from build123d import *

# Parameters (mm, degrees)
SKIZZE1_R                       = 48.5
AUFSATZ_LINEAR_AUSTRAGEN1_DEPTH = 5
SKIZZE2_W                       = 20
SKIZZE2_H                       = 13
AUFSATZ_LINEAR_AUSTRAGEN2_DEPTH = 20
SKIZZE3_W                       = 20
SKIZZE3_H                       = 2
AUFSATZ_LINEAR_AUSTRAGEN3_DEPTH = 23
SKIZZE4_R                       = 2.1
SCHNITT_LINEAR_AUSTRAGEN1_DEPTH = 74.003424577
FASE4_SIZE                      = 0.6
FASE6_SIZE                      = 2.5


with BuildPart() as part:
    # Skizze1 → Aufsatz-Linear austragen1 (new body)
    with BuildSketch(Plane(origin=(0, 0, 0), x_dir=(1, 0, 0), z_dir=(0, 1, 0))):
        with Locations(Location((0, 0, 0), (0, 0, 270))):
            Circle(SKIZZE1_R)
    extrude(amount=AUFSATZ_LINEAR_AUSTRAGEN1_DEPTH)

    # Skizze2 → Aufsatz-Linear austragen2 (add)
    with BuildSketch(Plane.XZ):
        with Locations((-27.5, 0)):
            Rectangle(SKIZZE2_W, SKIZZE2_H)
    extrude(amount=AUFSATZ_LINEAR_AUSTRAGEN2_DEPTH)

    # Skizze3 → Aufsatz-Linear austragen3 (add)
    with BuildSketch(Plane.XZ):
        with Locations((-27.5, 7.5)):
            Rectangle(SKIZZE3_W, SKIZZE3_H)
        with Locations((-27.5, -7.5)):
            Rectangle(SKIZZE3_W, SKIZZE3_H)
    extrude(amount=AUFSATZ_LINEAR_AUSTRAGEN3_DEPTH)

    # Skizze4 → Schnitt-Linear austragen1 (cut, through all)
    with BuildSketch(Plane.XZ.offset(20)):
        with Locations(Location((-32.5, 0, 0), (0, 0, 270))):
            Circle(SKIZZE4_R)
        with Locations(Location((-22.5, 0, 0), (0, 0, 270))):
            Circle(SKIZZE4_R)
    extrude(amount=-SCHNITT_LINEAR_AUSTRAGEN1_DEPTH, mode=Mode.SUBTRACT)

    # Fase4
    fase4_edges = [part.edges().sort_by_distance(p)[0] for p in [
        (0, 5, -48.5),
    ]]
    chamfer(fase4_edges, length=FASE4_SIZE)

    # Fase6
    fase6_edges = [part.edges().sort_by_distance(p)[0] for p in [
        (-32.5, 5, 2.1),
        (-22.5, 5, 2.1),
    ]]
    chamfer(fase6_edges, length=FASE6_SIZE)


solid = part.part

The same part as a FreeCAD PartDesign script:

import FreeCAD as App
import Part
import Sketcher

V = App.Vector
Q = App.Units.Quantity


def edges_at(feature, points):
    """Names of the edges that pass closest to the given points."""
    edges = feature.Shape.Edges
    near = lambda p: min(range(len(edges)), key=lambda i: edges[i].distToShape(Part.Vertex(*p))[0])
    return sorted({f"Edge{near(p) + 1}" for p in points})

doc = App.newDocument("Part")
body = doc.addObject("PartDesign::Body", "Body")

# Sketch on XZ plane
sketch1 = body.newObject("Sketcher::SketchObject", "Sketch")
sketch1.AttachmentSupport = (doc.getObject("XZ_Plane"), [""])
sketch1.MapMode = "FlatFace"
sketch1.addGeometry(Part.Circle(V(0, 0, 0), V(0, 0, 1), 48), False)
sketch1.addConstraint(Sketcher.Constraint("Coincident", 0, 3, -1, 1))
sketch1.addConstraint(Sketcher.Constraint("Diameter", 0, Q("97 mm")))
pad1 = body.newObject("PartDesign::Pad", "Pad")
pad1.Profile = sketch1
pad1.Length = 5
pad1.Reversed = True

# Sketch on XZ plane
sketch2 = body.newObject("Sketcher::SketchObject", "Sketch001")
sketch2.AttachmentSupport = (doc.getObject("XZ_Plane"), [""])
sketch2.MapMode = "FlatFace"
sketch2.addGeometry(Part.LineSegment(V(-38, 6, 0), V(-38, -6, 0)), False)
sketch2.addGeometry(Part.LineSegment(V(-38, -6, 0), V(-18, -6, 0)), False)
sketch2.addGeometry(Part.LineSegment(V(-18, -6, 0), V(-18, 6, 0)), False)
sketch2.addGeometry(Part.LineSegment(V(-18, 6, 0), V(-38, 6, 0)), False)
sketch2.addConstraint(Sketcher.Constraint("Coincident", 0, 2, 1, 1))
sketch2.addConstraint(Sketcher.Constraint("Coincident", 1, 2, 2, 1))
sketch2.addConstraint(Sketcher.Constraint("Coincident", 2, 2, 3, 1))
sketch2.addConstraint(Sketcher.Constraint("Coincident", 3, 2, 0, 1))
sketch2.addConstraint(Sketcher.Constraint("Vertical", 0))
sketch2.addConstraint(Sketcher.Constraint("Horizontal", 1))
sketch2.addConstraint(Sketcher.Constraint("Vertical", 2))
sketch2.addConstraint(Sketcher.Constraint("Horizontal", 3))
sketch2.addConstraint(Sketcher.Constraint("DistanceX", 1, 1, 1, 2, Q("20 mm")))
sketch2.addConstraint(Sketcher.Constraint("DistanceY", 0, 2, 0, 1, Q("13 mm")))
sketch2.addConstraint(Sketcher.Constraint("DistanceX", 0, 2, -1, 1, Q("37.5 mm")))
sketch2.addConstraint(Sketcher.Constraint("DistanceY", 0, 2, -1, 1, Q("6.5 mm")))
pad2 = body.newObject("PartDesign::Pad", "Pad001")
pad2.Profile = sketch2
pad2.Length = 20

# Sketch on XZ plane
sketch3 = body.newObject("Sketcher::SketchObject", "Sketch002")
sketch3.AttachmentSupport = (doc.getObject("XZ_Plane"), [""])
sketch3.MapMode = "FlatFace"
sketch3.addGeometry(Part.LineSegment(V(-37.5, 8.5, 0), V(-37.5, 6.5, 0)), False)
sketch3.addGeometry(Part.LineSegment(V(-37.5, 6.5, 0), V(-17.5, 6.5, 0)), False)
sketch3.addGeometry(Part.LineSegment(V(-17.5, 6.5, 0), V(-17.5, 8.5, 0)), False)
sketch3.addGeometry(Part.LineSegment(V(-17.5, 8.5, 0), V(-37.5, 8.5, 0)), False)
sketch3.addGeometry(Part.LineSegment(V(-37.5, -6.5, 0), V(-37.5, -8.5, 0)), False)
sketch3.addGeometry(Part.LineSegment(V(-37.5, -8.5, 0), V(-17.5, -8.5, 0)), False)
sketch3.addGeometry(Part.LineSegment(V(-17.5, -8.5, 0), V(-17.5, -6.5, 0)), False)
sketch3.addGeometry(Part.LineSegment(V(-17.5, -6.5, 0), V(-37.5, -6.5, 0)), False)
sketch3.addConstraint(Sketcher.Constraint("Coincident", 0, 2, 1, 1))
sketch3.addConstraint(Sketcher.Constraint("Coincident", 1, 2, 2, 1))
sketch3.addConstraint(Sketcher.Constraint("Coincident", 2, 2, 3, 1))
sketch3.addConstraint(Sketcher.Constraint("Coincident", 3, 2, 0, 1))
sketch3.addConstraint(Sketcher.Constraint("Coincident", 4, 2, 5, 1))
sketch3.addConstraint(Sketcher.Constraint("Coincident", 5, 2, 6, 1))
sketch3.addConstraint(Sketcher.Constraint("Coincident", 6, 2, 7, 1))
sketch3.addConstraint(Sketcher.Constraint("Coincident", 7, 2, 4, 1))
sketch3.addConstraint(Sketcher.Constraint("Vertical", 0))
sketch3.addConstraint(Sketcher.Constraint("Horizontal", 1))
sketch3.addConstraint(Sketcher.Constraint("Vertical", 2))
sketch3.addConstraint(Sketcher.Constraint("Horizontal", 3))
sketch3.addConstraint(Sketcher.Constraint("Vertical", 4))
sketch3.addConstraint(Sketcher.Constraint("Horizontal", 5))
sketch3.addConstraint(Sketcher.Constraint("Vertical", 6))
sketch3.addConstraint(Sketcher.Constraint("Horizontal", 7))
sketch3.addConstraint(Sketcher.Constraint("Symmetric", 3, 2, 4, 2, -1))
sketch3.addConstraint(Sketcher.Constraint("Symmetric", 1, 2, 6, 2, -1))
sketch3.addConstraint(Sketcher.Constraint("DistanceX", 1, 1, 1, 2, Q("20 mm")))
sketch3.addConstraint(Sketcher.Constraint("DistanceY", 0, 2, 0, 1, Q("2 mm")))
sketch3.addConstraint(Sketcher.Constraint("DistanceY", 4, 2, 0, 2, Q("15 mm")))
sketch3.addConstraint(Sketcher.Constraint("DistanceX", 0, 2, -1, 1, Q("37.5 mm")))
pad3 = body.newObject("PartDesign::Pad", "Pad002")
pad3.Profile = sketch3
pad3.Length = 23

# Sketch on XZ plane
sketch4 = body.newObject("Sketcher::SketchObject", "Sketch003")
sketch4.AttachmentSupport = (doc.getObject("XZ_Plane"), [""])
sketch4.MapMode = "FlatFace"
sketch4.AttachmentOffset = App.Placement(V(0, 0, 20), App.Rotation())
sketch4.addGeometry(Part.Circle(V(-32.5, 0, 0), V(0, 0, 1), 2.1), False)
sketch4.addGeometry(Part.Circle(V(-22.5, 0, 0), V(0, 0, 1), 2.1), False)
sketch4.addConstraint(Sketcher.Constraint("Equal", 0, 1))
sketch4.addConstraint(Sketcher.Constraint("PointOnObject", 0, 3, -1))
sketch4.addConstraint(Sketcher.Constraint("PointOnObject", 1, 3, -1))
sketch4.addConstraint(Sketcher.Constraint("Diameter", 0, Q("4.2 mm")))
sketch4.addConstraint(Sketcher.Constraint("DistanceX", 0, 3, 1, 3, Q("10 mm")))
sketch4.addConstraint(Sketcher.Constraint("DistanceX", 0, 3, -1, 1, Q("32.5 mm")))
pocket1 = body.newObject("PartDesign::Pocket", "Pocket")
pocket1.Profile = sketch4
pocket1.Type = "ThroughAll"
doc.recompute()

chamfer = body.newObject("PartDesign::Chamfer", "Chamfer")
chamfer.Base = (pocket1, edges_at(pocket1, [(0, 5, -48.5)]))
chamfer.Size = 0.6
doc.recompute()

chamfer2 = body.newObject("PartDesign::Chamfer", "Chamfer001")
chamfer2.Base = (chamfer, edges_at(chamfer, [(-32.5, 5, 2.1), (-22.5, 5, 2.1)]))
chamfer2.Size = 2.5

doc.recompute()
